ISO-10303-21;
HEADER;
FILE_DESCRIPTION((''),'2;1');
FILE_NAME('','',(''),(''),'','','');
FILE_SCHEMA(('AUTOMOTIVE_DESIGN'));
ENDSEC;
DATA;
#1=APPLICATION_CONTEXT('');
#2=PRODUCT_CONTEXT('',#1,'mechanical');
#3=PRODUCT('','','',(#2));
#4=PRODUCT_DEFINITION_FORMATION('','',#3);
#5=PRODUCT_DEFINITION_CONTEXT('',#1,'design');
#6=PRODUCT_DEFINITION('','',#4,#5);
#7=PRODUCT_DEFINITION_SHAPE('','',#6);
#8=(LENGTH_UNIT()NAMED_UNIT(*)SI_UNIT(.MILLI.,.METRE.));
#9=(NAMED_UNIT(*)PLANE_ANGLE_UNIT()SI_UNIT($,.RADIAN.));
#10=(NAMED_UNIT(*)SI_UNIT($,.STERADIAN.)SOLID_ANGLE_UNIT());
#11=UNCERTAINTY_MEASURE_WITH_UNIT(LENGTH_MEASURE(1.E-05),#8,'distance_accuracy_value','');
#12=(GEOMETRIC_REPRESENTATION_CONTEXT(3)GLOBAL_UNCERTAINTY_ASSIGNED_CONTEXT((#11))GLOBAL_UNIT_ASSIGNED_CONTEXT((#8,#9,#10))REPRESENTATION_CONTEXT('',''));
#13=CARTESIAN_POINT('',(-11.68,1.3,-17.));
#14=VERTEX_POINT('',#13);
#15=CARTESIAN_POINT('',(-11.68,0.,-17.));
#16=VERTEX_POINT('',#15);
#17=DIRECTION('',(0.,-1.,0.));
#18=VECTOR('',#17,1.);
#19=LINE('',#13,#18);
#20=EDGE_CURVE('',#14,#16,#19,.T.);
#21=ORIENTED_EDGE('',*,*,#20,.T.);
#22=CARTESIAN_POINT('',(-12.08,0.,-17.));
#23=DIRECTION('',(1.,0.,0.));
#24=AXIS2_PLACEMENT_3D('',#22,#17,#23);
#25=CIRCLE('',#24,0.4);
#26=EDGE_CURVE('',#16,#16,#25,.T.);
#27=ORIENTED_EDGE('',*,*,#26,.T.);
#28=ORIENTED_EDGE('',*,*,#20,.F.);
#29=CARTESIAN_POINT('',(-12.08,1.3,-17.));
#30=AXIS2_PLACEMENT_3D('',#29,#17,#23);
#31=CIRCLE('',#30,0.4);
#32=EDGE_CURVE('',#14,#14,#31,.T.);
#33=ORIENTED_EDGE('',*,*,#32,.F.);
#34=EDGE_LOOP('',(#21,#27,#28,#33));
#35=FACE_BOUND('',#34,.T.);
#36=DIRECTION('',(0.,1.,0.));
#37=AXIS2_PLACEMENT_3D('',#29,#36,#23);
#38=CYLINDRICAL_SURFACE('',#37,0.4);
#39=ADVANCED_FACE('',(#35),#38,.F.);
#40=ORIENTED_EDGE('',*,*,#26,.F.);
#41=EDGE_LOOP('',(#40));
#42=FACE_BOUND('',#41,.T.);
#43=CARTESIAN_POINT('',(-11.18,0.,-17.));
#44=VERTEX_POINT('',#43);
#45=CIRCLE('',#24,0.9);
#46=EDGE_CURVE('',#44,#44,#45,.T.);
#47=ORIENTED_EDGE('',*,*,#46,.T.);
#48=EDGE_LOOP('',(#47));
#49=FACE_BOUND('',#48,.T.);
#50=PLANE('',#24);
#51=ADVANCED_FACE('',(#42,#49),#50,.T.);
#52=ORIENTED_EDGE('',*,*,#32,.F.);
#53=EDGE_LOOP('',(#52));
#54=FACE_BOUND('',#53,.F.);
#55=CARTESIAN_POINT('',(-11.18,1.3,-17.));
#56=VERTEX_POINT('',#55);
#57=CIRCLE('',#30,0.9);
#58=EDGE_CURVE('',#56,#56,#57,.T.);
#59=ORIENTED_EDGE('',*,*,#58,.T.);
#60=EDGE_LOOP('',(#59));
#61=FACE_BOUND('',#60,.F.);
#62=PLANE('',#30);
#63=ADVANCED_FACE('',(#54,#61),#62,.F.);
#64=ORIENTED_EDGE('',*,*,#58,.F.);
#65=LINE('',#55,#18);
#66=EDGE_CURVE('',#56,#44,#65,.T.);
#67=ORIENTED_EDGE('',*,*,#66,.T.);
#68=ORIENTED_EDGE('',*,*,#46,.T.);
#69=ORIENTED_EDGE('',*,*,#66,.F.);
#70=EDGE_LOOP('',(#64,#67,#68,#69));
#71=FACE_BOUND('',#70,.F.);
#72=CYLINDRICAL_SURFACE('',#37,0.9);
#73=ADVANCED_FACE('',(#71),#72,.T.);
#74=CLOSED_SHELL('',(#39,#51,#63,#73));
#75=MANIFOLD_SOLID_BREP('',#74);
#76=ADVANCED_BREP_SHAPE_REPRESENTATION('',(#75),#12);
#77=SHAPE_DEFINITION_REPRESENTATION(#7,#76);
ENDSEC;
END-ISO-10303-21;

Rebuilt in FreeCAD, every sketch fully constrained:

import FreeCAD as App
import Part
import Sketcher

V = App.Vector

doc = App.newDocument("Part")
params = doc.addObject("Spreadsheet::Sheet", "Params")
for row, (alias, value) in enumerate([
    ("sketch1_diameter", "0.8 mm"),
    ("pad1_length", "1.3 mm"),
    ("sketch2_diameter", "1.8 mm"),
    ("pad2_length", "1.3 mm"),
], start=1):
    params.set(f"A{row}", alias)
    params.set(f"B{row}", "=" + value)
    params.setAlias(f"B{row}", alias)

body = doc.addObject("PartDesign::Body", "Body")

sketch1 = body.newObject("Sketcher::SketchObject", "Sketch")
sketch1.AttachmentSupport = (doc.getObject("XY_Plane"), [""])
sketch1.MapMode = "FlatFace"
sketch1.addGeometry(Part.Circle(V(0, 0, 0), V(0, 0, 1), 0.4), False)
sketch1.addConstraint([
    Sketcher.Constraint("Coincident", 0, 3, -1, 1),
    Sketcher.Constraint("Diameter", 0, 0.8),
])
sketch1.setExpression("Constraints[1]", "Params.sketch1_diameter")
pad1 = body.newObject("PartDesign::Pad", "Pad")
pad1.Profile = sketch1
pad1.setExpression("Length", "Params.pad1_length")
body2 = doc.addObject("PartDesign::Body", "Body001")

sketch2 = body2.newObject("Sketcher::SketchObject", "Sketch001")
sketch2.AttachmentSupport = (doc.getObject("XY_Plane001"), [""])
sketch2.MapMode = "FlatFace"
sketch2.addGeometry(Part.Circle(V(0, 0, 0), V(0, 0, 1), 0.9), False)
sketch2.addConstraint([
    Sketcher.Constraint("Coincident", 0, 3, -1, 1),
    Sketcher.Constraint("Diameter", 0, 1.8),
])
sketch2.setExpression("Constraints[1]", "Params.sketch2_diameter")
pad2 = body2.newObject("PartDesign::Pad", "Pad001")
pad2.Profile = sketch2
pad2.setExpression("Length", "Params.pad2_length")
doc.recompute()

boolean = body2.newObject("PartDesign::Boolean", "Boolean")
boolean.Type = "Cut"
boolean.addObjects([body])
body3 = doc.addObject("PartDesign::Body", "Body002")
doc.recompute()

body2.Placement = App.Placement(V(-12.08, 1.3, -17), App.Rotation(V(1, 0, 0), 90))
boolean2 = body3.newObject("PartDesign::Boolean", "Boolean001")
boolean2.Type = "Fuse"
boolean2.addObjects([body2])

doc.recompute()
